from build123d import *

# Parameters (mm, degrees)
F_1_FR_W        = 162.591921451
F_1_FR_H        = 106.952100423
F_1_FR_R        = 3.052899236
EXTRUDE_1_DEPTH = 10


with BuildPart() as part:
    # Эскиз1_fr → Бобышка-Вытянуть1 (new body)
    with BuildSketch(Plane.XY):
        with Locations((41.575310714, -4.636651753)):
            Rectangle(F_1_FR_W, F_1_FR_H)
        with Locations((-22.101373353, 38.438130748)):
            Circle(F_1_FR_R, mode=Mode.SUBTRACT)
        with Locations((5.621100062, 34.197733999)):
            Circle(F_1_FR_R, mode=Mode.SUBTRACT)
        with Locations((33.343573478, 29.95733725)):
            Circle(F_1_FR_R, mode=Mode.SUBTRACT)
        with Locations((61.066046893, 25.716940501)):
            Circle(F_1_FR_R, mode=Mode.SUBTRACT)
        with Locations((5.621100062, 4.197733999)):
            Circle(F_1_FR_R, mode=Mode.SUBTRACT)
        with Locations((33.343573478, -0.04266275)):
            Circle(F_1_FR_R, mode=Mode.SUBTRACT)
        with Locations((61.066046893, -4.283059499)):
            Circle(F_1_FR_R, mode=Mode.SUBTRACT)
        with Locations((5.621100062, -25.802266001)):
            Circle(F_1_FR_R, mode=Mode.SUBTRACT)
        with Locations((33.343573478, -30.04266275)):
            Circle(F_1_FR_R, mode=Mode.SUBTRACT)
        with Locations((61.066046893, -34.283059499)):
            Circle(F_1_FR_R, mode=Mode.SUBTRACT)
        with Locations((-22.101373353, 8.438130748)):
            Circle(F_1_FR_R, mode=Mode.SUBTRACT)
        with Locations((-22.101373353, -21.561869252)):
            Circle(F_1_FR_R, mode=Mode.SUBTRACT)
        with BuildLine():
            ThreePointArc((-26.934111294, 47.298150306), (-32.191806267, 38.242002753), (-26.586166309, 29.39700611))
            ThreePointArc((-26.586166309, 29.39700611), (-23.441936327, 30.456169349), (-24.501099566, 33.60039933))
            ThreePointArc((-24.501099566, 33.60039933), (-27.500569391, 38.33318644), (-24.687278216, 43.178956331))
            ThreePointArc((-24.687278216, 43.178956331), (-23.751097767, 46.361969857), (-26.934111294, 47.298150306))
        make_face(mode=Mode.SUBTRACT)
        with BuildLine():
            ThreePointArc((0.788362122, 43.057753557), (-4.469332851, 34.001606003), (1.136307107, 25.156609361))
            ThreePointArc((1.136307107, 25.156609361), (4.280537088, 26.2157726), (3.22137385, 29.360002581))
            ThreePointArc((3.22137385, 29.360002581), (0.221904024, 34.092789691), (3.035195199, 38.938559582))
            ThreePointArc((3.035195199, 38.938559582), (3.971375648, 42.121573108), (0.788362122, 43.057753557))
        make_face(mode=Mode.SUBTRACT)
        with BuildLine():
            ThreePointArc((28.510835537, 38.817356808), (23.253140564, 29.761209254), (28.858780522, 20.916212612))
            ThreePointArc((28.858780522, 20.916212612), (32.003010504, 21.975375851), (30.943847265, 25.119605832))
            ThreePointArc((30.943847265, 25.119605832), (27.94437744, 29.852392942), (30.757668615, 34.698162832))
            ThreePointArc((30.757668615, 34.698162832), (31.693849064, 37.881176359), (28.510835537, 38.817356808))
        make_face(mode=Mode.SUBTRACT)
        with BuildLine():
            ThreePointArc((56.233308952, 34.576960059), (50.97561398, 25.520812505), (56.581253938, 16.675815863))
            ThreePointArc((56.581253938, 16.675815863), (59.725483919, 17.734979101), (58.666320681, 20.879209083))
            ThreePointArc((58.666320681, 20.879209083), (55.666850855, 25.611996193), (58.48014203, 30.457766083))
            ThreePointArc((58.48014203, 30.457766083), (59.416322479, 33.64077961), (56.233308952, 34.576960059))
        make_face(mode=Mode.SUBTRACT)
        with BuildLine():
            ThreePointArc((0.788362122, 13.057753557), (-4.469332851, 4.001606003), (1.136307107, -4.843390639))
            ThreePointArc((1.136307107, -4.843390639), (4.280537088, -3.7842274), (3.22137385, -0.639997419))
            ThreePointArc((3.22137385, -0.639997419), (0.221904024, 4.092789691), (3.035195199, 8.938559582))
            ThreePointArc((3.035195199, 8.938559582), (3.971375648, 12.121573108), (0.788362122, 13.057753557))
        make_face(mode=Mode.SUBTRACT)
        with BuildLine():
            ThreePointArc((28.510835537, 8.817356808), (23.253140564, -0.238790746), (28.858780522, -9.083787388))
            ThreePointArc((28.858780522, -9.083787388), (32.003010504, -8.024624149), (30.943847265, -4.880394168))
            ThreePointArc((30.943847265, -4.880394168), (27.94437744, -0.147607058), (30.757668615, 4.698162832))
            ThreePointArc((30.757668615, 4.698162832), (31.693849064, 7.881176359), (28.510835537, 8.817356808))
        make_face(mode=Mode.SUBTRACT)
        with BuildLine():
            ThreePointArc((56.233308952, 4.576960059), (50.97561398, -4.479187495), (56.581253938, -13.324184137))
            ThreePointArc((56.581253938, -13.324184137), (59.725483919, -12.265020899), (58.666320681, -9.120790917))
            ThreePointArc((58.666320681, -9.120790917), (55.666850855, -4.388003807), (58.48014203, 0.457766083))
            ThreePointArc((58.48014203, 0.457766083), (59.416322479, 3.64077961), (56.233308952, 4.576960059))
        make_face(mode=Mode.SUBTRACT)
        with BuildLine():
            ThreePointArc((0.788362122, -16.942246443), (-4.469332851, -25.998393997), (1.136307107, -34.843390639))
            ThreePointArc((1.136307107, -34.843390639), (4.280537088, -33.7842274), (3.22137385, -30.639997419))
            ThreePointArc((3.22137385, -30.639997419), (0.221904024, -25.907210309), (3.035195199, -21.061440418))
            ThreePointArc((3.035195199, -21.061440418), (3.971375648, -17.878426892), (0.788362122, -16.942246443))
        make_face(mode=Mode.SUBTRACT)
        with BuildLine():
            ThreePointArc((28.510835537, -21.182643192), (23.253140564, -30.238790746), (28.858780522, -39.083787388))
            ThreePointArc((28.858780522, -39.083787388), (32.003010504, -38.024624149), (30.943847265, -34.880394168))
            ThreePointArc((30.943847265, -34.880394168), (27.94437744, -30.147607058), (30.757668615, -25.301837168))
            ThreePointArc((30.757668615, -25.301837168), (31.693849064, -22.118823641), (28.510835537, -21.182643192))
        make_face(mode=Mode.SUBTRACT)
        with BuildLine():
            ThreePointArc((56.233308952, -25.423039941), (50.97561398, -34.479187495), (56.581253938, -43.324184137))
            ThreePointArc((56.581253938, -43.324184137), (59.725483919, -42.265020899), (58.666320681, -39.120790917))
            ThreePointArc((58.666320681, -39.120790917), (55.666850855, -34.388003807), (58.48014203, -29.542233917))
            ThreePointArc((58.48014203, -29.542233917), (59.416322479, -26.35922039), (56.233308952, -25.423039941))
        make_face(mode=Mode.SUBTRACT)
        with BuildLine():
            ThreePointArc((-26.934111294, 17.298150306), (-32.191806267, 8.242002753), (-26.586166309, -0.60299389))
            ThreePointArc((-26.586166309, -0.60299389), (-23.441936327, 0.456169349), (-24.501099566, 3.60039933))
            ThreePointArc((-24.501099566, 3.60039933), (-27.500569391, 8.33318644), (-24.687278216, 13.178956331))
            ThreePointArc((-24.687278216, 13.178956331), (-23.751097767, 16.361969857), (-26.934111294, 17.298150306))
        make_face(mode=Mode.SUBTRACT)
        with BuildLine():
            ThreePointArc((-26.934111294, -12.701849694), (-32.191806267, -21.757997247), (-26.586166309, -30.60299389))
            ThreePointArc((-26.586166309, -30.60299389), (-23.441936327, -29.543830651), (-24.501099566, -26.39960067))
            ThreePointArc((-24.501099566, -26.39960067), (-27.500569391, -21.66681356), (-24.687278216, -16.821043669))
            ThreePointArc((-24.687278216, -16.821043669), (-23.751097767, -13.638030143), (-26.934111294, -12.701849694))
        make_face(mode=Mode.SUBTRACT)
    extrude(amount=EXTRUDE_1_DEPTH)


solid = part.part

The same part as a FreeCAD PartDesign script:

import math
import FreeCAD as App
import Part
import Sketcher

doc = App.newDocument("Part")
body = doc.addObject("PartDesign::Body", "Body")

# Sketch on XY plane
sketch1 = body.newObject("Sketcher::SketchObject", "Sketch")
sketch1.AttachmentSupport = (doc.getObject("XY_Plane"), [""])
sketch1.MapMode = "FlatFace"
sketch1.addGeometry([
    Part.LineSegment(App.Vector(-39.72065, 48.839398, 0), App.Vector(-39.72065, -58.112702, 0)),  # 0
    Part.LineSegment(App.Vector(-39.72065, -58.112702, 0), App.Vector(122.871271, -58.112702, 0)),  # 1
    Part.LineSegment(App.Vector(122.871271, -58.112702, 0), App.Vector(122.871271, 48.839398, 0)),  # 2
    Part.LineSegment(App.Vector(122.871271, 48.839398, 0), App.Vector(-39.72065, 48.839398, 0)),  # 3
    Part.ArcOfCircle(Part.Circle(App.Vector(-22.101373, -21.561869, 0), App.Vector(0, 0, 1), 10.092339), math.radians(118.61046), math.radians(243.616579)),  # 4
    Part.ArcOfCircle(Part.Circle(App.Vector(-25.810695, -14.761447, 0), App.Vector(0, 0, 1), 2.346061), math.radians(-61.38954), math.radians(118.61046)),  # 5
    Part.ArcOfCircle(Part.Circle(App.Vector(-22.101373, -21.561869, 0), App.Vector(0, 0, 1), 5.400216), math.radians(118.61046), math.radians(243.616579)),  # 6
    Part.ArcOfCircle(Part.Circle(App.Vector(-25.543633, -28.501297, 0), App.Vector(0, 0, 1), 2.346061), math.radians(-116.383421), math.radians(63.616579)),  # 7
    Part.Circle(App.Vector(-22.101373, -21.561869, 0), App.Vector(0, 0, 1), 3.052899),  # 8
    Part.ArcOfCircle(Part.Circle(App.Vector(5.6211, -25.802266, 0), App.Vector(0, 0, 1), 10.092339), math.radians(118.61046), math.radians(243.616579)),  # 9
    Part.ArcOfCircle(Part.Circle(App.Vector(1.911779, -19.001843, 0), App.Vector(0, 0, 1), 2.346061), math.radians(-61.38954), math.radians(118.61046)),  # 10
    Part.ArcOfCircle(Part.Circle(App.Vector(5.6211, -25.802266, 0), App.Vector(0, 0, 1), 5.400216), math.radians(118.61046), math.radians(243.616579)),  # 11
    Part.ArcOfCircle(Part.Circle(App.Vector(2.17884, -32.741694, 0), App.Vector(0, 0, 1), 2.346061), math.radians(-116.383421), math.radians(63.616579)),  # 12
    Part.Circle(App.Vector(5.6211, -25.802266, 0), App.Vector(0, 0, 1), 3.052899),  # 13
    Part.ArcOfCircle(Part.Circle(App.Vector(33.343573, -30.042663, 0), App.Vector(0, 0, 1), 10.092339), math.radians(118.61046), math.radians(243.616579)),  # 14
    Part.ArcOfCircle(Part.Circle(App.Vector(29.634252, -23.24224, 0), App.Vector(0, 0, 1), 2.346061), math.radians(-61.38954), math.radians(118.61046)),  # 15
    Part.ArcOfCircle(Part.Circle(App.Vector(33.343573, -30.042663, 0), App.Vector(0, 0, 1), 5.400216), math.radians(118.61046), math.radians(243.616579)),  # 16
    Part.ArcOfCircle(Part.Circle(App.Vector(29.901314, -36.982091, 0), App.Vector(0, 0, 1), 2.346061), math.radians(-116.383421), math.radians(63.616579)),  # 17
    Part.Circle(App.Vector(33.343573, -30.042663, 0), App.Vector(0, 0, 1), 3.052899),  # 18
    Part.ArcOfCircle(Part.Circle(App.Vector(61.066047, -34.283059, 0), App.Vector(0, 0, 1), 10.092339), math.radians(118.61046), math.radians(243.616579)),  # 19
    Part.ArcOfCircle(Part.Circle(App.Vector(57.356725, -27.482637, 0), App.Vector(0, 0, 1), 2.346061), math.radians(-61.38954), math.radians(118.61046)),  # 20
    Part.ArcOfCircle(Part.Circle(App.Vector(61.066047, -34.283059, 0), App.Vector(0, 0, 1), 5.400216), math.radians(118.61046), math.radians(243.616579)),  # 21
    Part.ArcOfCircle(Part.Circle(App.Vector(57.623787, -41.222488, 0), App.Vector(0, 0, 1), 2.346061), math.radians(-116.383421), math.radians(63.616579)),  # 22
    Part.Circle(App.Vector(61.066047, -34.283059, 0), App.Vector(0, 0, 1), 3.052899),  # 23
    Part.ArcOfCircle(Part.Circle(App.Vector(33.343573, -0.042663, 0), App.Vector(0, 0, 1), 10.092339), math.radians(118.61046), math.radians(243.616579)),  # 24
    Part.ArcOfCircle(Part.Circle(App.Vector(29.634252, 6.75776, 0), App.Vector(0, 0, 1), 2.346061), math.radians(-61.38954), math.radians(118.61046)),  # 25
    Part.ArcOfCircle(Part.Circle(App.Vector(33.343573, -0.042663, 0), App.Vector(0, 0, 1), 5.400216), math.radians(118.61046), math.radians(243.616579)),  # 26
    Part.ArcOfCircle(Part.Circle(App.Vector(29.901314, -6.982091, 0), App.Vector(0, 0, 1), 2.346061), math.radians(-116.383421), math.radians(63.616579)),  # 27
    Part.Circle(App.Vector(33.343573, -0.042663, 0), App.Vector(0, 0, 1), 3.052899),  # 28
    Part.ArcOfCircle(Part.Circle(App.Vector(61.066047, -4.283059, 0), App.Vector(0, 0, 1), 10.092339), math.radians(118.61046), math.radians(243.616579)),  # 29
    Part.ArcOfCircle(Part.Circle(App.Vector(57.356725, 2.517363, 0), App.Vector(0, 0, 1), 2.346061), math.radians(-61.38954), math.radians(118.61046)),  # 30
    Part.ArcOfCircle(Part.Circle(App.Vector(61.066047, -4.283059, 0), App.Vector(0, 0, 1), 5.400216), math.radians(118.61046), math.radians(243.616579)),  # 31
    Part.ArcOfCircle(Part.Circle(App.Vector(57.623787, -11.222488, 0), App.Vector(0, 0, 1), 2.346061), math.radians(-116.383421), math.radians(63.616579)),  # 32
    Part.Circle(App.Vector(61.066047, -4.283059, 0), App.Vector(0, 0, 1), 3.052899),  # 33
    Part.ArcOfCircle(Part.Circle(App.Vector(-22.101373, 8.438131, 0), App.Vector(0, 0, 1), 10.092339), math.radians(118.61046), math.radians(243.616579)),  # 34
    Part.ArcOfCircle(Part.Circle(App.Vector(-25.810695, 15.238553, 0), App.Vector(0, 0, 1), 2.346061), math.radians(-61.38954), math.radians(118.61046)),  # 35
    Part.ArcOfCircle(Part.Circle(App.Vector(-22.101373, 8.438131, 0), App.Vector(0, 0, 1), 5.400216), math.radians(118.61046), math.radians(243.616579)),  # 36
    Part.ArcOfCircle(Part.Circle(App.Vector(-25.543633, 1.498703, 0), App.Vector(0, 0, 1), 2.346061), math.radians(-116.383421), math.radians(63.616579)),  # 37
    Part.Circle(App.Vector(-22.101373, 8.438131, 0), App.Vector(0, 0, 1), 3.052899),  # 38
    Part.ArcOfCircle(Part.Circle(App.Vector(5.6211, 4.197734, 0), App.Vector(0, 0, 1), 10.092339), math.radians(118.61046), math.radians(243.616579)),  # 39
    Part.ArcOfCircle(Part.Circle(App.Vector(1.911779, 10.998157, 0), App.Vector(0, 0, 1), 2.346061), math.radians(-61.38954), math.radians(118.61046)),  # 40
    Part.ArcOfCircle(Part.Circle(App.Vector(5.6211, 4.197734, 0), App.Vector(0, 0, 1), 5.400216), math.radians(118.61046), math.radians(243.616579)),  # 41
    Part.ArcOfCircle(Part.Circle(App.Vector(2.17884, -2.741694, 0), App.Vector(0, 0, 1), 2.346061), math.radians(-116.383421), math.radians(63.616579)),  # 42
    Part.Circle(App.Vector(5.6211, 4.197734, 0), App.Vector(0, 0, 1), 3.052899),  # 43
    Part.ArcOfCircle(Part.Circle(App.Vector(-22.101373, 38.438131, 0), App.Vector(0, 0, 1), 10.092339), math.radians(118.61046), math.radians(243.616579)),  # 44
    Part.ArcOfCircle(Part.Circle(App.Vector(-25.810695, 45.238553, 0), App.Vector(0, 0, 1), 2.346061), math.radians(-61.38954), math.radians(118.61046)),  # 45
    Part.ArcOfCircle(Part.Circle(App.Vector(-22.101373, 38.438131, 0), App.Vector(0, 0, 1), 5.400216), math.radians(118.61046), math.radians(243.616579)),  # 46
    Part.ArcOfCircle(Part.Circle(App.Vector(-25.543633, 31.498703, 0), App.Vector(0, 0, 1), 2.346061), math.radians(-116.383421), math.radians(63.616579)),  # 47
    Part.Circle(App.Vector(-22.101373, 38.438131, 0), App.Vector(0, 0, 1), 3.052899),  # 48
    Part.ArcOfCircle(Part.Circle(App.Vector(5.6211, 34.197734, 0), App.Vector(0, 0, 1), 10.092339), math.radians(118.61046), math.radians(243.616579)),  # 49
    Part.ArcOfCircle(Part.Circle(App.Vector(1.911779, 40.998157, 0), App.Vector(0, 0, 1), 2.346061), math.radians(-61.38954), math.radians(118.61046)),  # 50
    Part.ArcOfCircle(Part.Circle(App.Vector(5.6211, 34.197734, 0), App.Vector(0, 0, 1), 5.400216), math.radians(118.61046), math.radians(243.616579)),  # 51
    Part.ArcOfCircle(Part.Circle(App.Vector(2.17884, 27.258306, 0), App.Vector(0, 0, 1), 2.346061), math.radians(-116.383421), math.radians(63.616579)),  # 52
    Part.Circle(App.Vector(5.6211, 34.197734, 0), App.Vector(0, 0, 1), 3.052899),  # 53
    Part.ArcOfCircle(Part.Circle(App.Vector(33.343573, 29.957337, 0), App.Vector(0, 0, 1), 10.092339), math.radians(118.61046), math.radians(243.616579)),  # 54
    Part.ArcOfCircle(Part.Circle(App.Vector(29.634252, 36.75776, 0), App.Vector(0, 0, 1), 2.346061), math.radians(-61.38954), math.radians(118.61046)),  # 55
    Part.ArcOfCircle(Part.Circle(App.Vector(33.343573, 29.957337, 0), App.Vector(0, 0, 1), 5.400216), math.radians(118.61046), math.radians(243.616579)),  # 56
    Part.ArcOfCircle(Part.Circle(App.Vector(29.901314, 23.017909, 0), App.Vector(0, 0, 1), 2.346061), math.radians(-116.383421), math.radians(63.616579)),  # 57
    Part.Circle(App.Vector(33.343573, 29.957337, 0), App.Vector(0, 0, 1), 3.052899),  # 58
    Part.ArcOfCircle(Part.Circle(App.Vector(61.066047, 25.716941, 0), App.Vector(0, 0, 1), 10.092339), math.radians(118.61046), math.radians(243.616579)),  # 59
    Part.ArcOfCircle(Part.Circle(App.Vector(57.356725, 32.517363, 0), App.Vector(0, 0, 1), 2.346061), math.radians(-61.38954), math.radians(118.61046)),  # 60
    Part.ArcOfCircle(Part.Circle(App.Vector(61.066047, 25.716941, 0), App.Vector(0, 0, 1), 5.400216), math.radians(118.61046), math.radians(243.616579)),  # 61
    Part.ArcOfCircle(Part.Circle(App.Vector(57.623787, 18.777512, 0), App.Vector(0, 0, 1), 2.346061), math.radians(-116.383421), math.radians(63.616579)),  # 62
    Part.Circle(App.Vector(61.066047, 25.716941, 0), App.Vector(0, 0, 1), 3.052899),  # 63
], False)
sketch1.addConstraint([
    Sketcher.Constraint("Coincident", 0, 2, 1, 1),
    Sketcher.Constraint("Coincident", 1, 2, 2, 1),
    Sketcher.Constraint("Coincident", 2, 2, 3, 1),
    Sketcher.Constraint("Coincident", 3, 2, 0, 1),
    Sketcher.Constraint("Tangent", 4, 1, 5, 2),
    Sketcher.Constraint("Tangent", 5, 1, 6, 1),
    Sketcher.Constraint("Tangent", 6, 2, 7, 2),
    Sketcher.Constraint("Tangent", 7, 1, 4, 2),
    Sketcher.Constraint("Tangent", 9, 1, 10, 2),
    Sketcher.Constraint("Tangent", 10, 1, 11, 1),
    Sketcher.Constraint("Tangent", 11, 2, 12, 2),
    Sketcher.Constraint("Tangent", 12, 1, 9, 2),
    Sketcher.Constraint("Tangent", 14, 1, 15, 2),
    Sketcher.Constraint("Tangent", 15, 1, 16, 1),
    Sketcher.Constraint("Tangent", 16, 2, 17, 2),
    Sketcher.Constraint("Tangent", 17, 1, 14, 2),
    Sketcher.Constraint("Tangent", 19, 1, 20, 2),
    Sketcher.Constraint("Tangent", 20, 1, 21, 1),
    Sketcher.Constraint("Tangent", 21, 2, 22, 2),
    Sketcher.Constraint("Tangent", 22, 1, 19, 2),
    Sketcher.Constraint("Tangent", 24, 1, 25, 2),
    Sketcher.Constraint("Tangent", 25, 1, 26, 1),
    Sketcher.Constraint("Tangent", 26, 2, 27, 2),
    Sketcher.Constraint("Tangent", 27, 1, 24, 2),
    Sketcher.Constraint("Tangent", 29, 1, 30, 2),
    Sketcher.Constraint("Tangent", 30, 1, 31, 1),
    Sketcher.Constraint("Tangent", 31, 2, 32, 2),
    Sketcher.Constraint("Tangent", 32, 1, 29, 2),
    Sketcher.Constraint("Tangent", 34, 1, 35, 2),
    Sketcher.Constraint("Tangent", 35, 1, 36, 1),
    Sketcher.Constraint("Tangent", 36, 2, 37, 2),
    Sketcher.Constraint("Tangent", 37, 1, 34, 2),
    Sketcher.Constraint("Tangent", 39, 1, 40, 2),
    Sketcher.Constraint("Tangent", 40, 1, 41, 1),
    Sketcher.Constraint("Tangent", 41, 2, 42, 2),
    Sketcher.Constraint("Tangent", 42, 1, 39, 2),
    Sketcher.Constraint("Tangent", 44, 1, 45, 2),
    Sketcher.Constraint("Tangent", 45, 1, 46, 1),
    Sketcher.Constraint("Tangent", 46, 2, 47, 2),
    Sketcher.Constraint("Tangent", 47, 1, 44, 2),
    Sketcher.Constraint("Tangent", 49, 1, 50, 2),
    Sketcher.Constraint("Tangent", 50, 1, 51, 1),
    Sketcher.Constraint("Tangent", 51, 2, 52, 2),
    Sketcher.Constraint("Tangent", 52, 1, 49, 2),
    Sketcher.Constraint("Tangent", 54, 1, 55, 2),
    Sketcher.Constraint("Tangent", 55, 1, 56, 1),
    Sketcher.Constraint("Tangent", 56, 2, 57, 2),
    Sketcher.Constraint("Tangent", 57, 1, 54, 2),
    Sketcher.Constraint("Tangent", 59, 1, 60, 2),
    Sketcher.Constraint("Tangent", 60, 1, 61, 1),
    Sketcher.Constraint("Tangent", 61, 2, 62, 2),
    Sketcher.Constraint("Tangent", 62, 1, 59, 2),
    Sketcher.Constraint("Vertical", 0),
    Sketcher.Constraint("Horizontal", 1),
    Sketcher.Constraint("Vertical", 2),
    Sketcher.Constraint("Horizontal", 3),
    Sketcher.Constraint("Coincident", 6, 3, 4, 3),
    Sketcher.Constraint("Coincident", 8, 3, 4, 3),
    Sketcher.Constraint("Coincident", 11, 3, 9, 3),
    Sketcher.Constraint("Coincident", 13, 3, 9, 3),
    Sketcher.Constraint("Coincident", 16, 3, 14, 3),
    Sketcher.Constraint("Coincident", 18, 3, 14, 3),
    Sketcher.Constraint("Coincident", 21, 3, 19, 3),
    Sketcher.Constraint("Coincident", 23, 3, 19, 3),
    Sketcher.Constraint("Coincident", 26, 3, 24, 3),
    Sketcher.Constraint("Coincident", 28, 3, 24, 3),
    Sketcher.Constraint("Coincident", 31, 3, 29, 3),
    Sketcher.Constraint("Coincident", 33, 3, 29, 3),
    Sketcher.Constraint("Coincident", 36, 3, 34, 3),
    Sketcher.Constraint("Coincident", 38, 3, 34, 3),
    Sketcher.Constraint("Coincident", 41, 3, 39, 3),
    Sketcher.Constraint("Coincident", 43, 3, 39, 3),
    Sketcher.Constraint("Coincident", 46, 3, 44, 3),
    Sketcher.Constraint("Coincident", 48, 3, 44, 3),
    Sketcher.Constraint("Coincident", 51, 3, 49, 3),
    Sketcher.Constraint("Coincident", 53, 3, 49, 3),
    Sketcher.Constraint("Coincident", 56, 3, 54, 3),
    Sketcher.Constraint("Coincident", 58, 3, 54, 3),
    Sketcher.Constraint("Coincident", 61, 3, 59, 3),
    Sketcher.Constraint("Coincident", 63, 3, 59, 3),
    Sketcher.Constraint("Equal", 4, 9),
    Sketcher.Constraint("Equal", 7, 10),
    Sketcher.Constraint("Equal", 8, 13),
    Sketcher.Constraint("Equal", 9, 14),
    Sketcher.Constraint("Equal", 12, 15),
    Sketcher.Constraint("Equal", 13, 18),
    Sketcher.Constraint("Equal", 14, 19),
    Sketcher.Constraint("Equal", 17, 20),
    Sketcher.Constraint("Equal", 18, 23),
    Sketcher.Constraint("Equal", 19, 24),
    Sketcher.Constraint("Equal", 22, 25),
    Sketcher.Constraint("Equal", 23, 28),
    Sketcher.Constraint("Equal", 24, 29),
    Sketcher.Constraint("Equal", 27, 30),
    Sketcher.Constraint("Equal", 28, 33),
    Sketcher.Constraint("Equal", 29, 34),
    Sketcher.Constraint("Equal", 32, 35),
    Sketcher.Constraint("Equal", 33, 38),
    Sketcher.Constraint("Equal", 34, 39),
    Sketcher.Constraint("Equal", 37, 40),
    Sketcher.Constraint("Equal", 38, 43),
    Sketcher.Constraint("Equal", 39, 44),
    Sketcher.Constraint("Equal", 42, 45),
    Sketcher.Constraint("Equal", 43, 48),
    Sketcher.Constraint("Equal", 44, 49),
    Sketcher.Constraint("Equal", 47, 50),
    Sketcher.Constraint("Equal", 48, 53),
    Sketcher.Constraint("Equal", 49, 54),
    Sketcher.Constraint("Equal", 52, 55),
    Sketcher.Constraint("Equal", 53, 58),
    Sketcher.Constraint("Equal", 54, 59),
    Sketcher.Constraint("Equal", 57, 60),
    Sketcher.Constraint("Equal", 58, 63),
    Sketcher.Constraint("Vertical", 18, 3, 24, 3),
    Sketcher.Constraint("Vertical", 15, 3, 25, 3),
    Sketcher.Constraint("Vertical", 17, 3, 27, 3),
    Sketcher.Constraint("Vertical", 23, 3, 29, 3),
    Sketcher.Constraint("Vertical", 20, 3, 30, 3),
    Sketcher.Constraint("Vertical", 22, 3, 32, 3),
    Sketcher.Constraint("Vertical", 8, 3, 34, 3),
    Sketcher.Constraint("Vertical", 5, 3, 35, 3),
    Sketcher.Constraint("Vertical", 7, 3, 37, 3),
    Sketcher.Constraint("Vertical", 13, 3, 39, 3),
    Sketcher.Constraint("Vertical", 10, 3, 40, 3),
    Sketcher.Constraint("Vertical", 12, 3, 42, 3),
    Sketcher.Constraint("Vertical", 38, 3, 44, 3),
    Sketcher.Constraint("Vertical", 35, 3, 45, 3),
    Sketcher.Constraint("Vertical", 37, 3, 47, 3),
    Sketcher.Constraint("Vertical", 43, 3, 49, 3),
    Sketcher.Constraint("Vertical", 40, 3, 50, 3),
    Sketcher.Constraint("Vertical", 42, 3, 52, 3),
    Sketcher.Constraint("Vertical", 28, 3, 54, 3),
    Sketcher.Constraint("Vertical", 25, 3, 55, 3),
    Sketcher.Constraint("Vertical", 27, 3, 57, 3),
    Sketcher.Constraint("Vertical", 33, 3, 59, 3),
    Sketcher.Constraint("Vertical", 30, 3, 60, 3),
    Sketcher.Constraint("Vertical", 32, 3, 62, 3),
    Sketcher.Constraint("Diameter", 8, 6.105798),
    Sketcher.Constraint("Radius", 4, 10.092339),
    Sketcher.Constraint("Radius", 5, 2.346061),
    Sketcher.Constraint("DistanceY", 0, 2, 0, 1, 106.9521),
    Sketcher.Constraint("DistanceX", 1, 1, 1, 2, 162.591921),
    Sketcher.Constraint("DistanceX", -1, 1, 9, 3, 5.6211),
    Sketcher.Constraint("DistanceY", 0, 2, -1, 1, 58.112702),
    Sketcher.Constraint("DistanceX", 6, 2, -1, 1, 24.5011),
    Sketcher.Constraint("DistanceY", 6, 2, -1, 1, 26.399601),
    Sketcher.Constraint("DistanceY", -1, 1, 36, 2, 3.600399),
    Sketcher.Constraint("DistanceY", -1, 1, 46, 2, 33.600399),
    Sketcher.Constraint("DistanceY", 4, 3, -1, 1, 21.561869),
    Sketcher.Constraint("DistanceX", -1, 1, 10, 3, 1.911779),
    Sketcher.Constraint("DistanceX", -1, 1, 12, 3, 2.17884),
    Sketcher.Constraint("DistanceY", 15, 3, -1, 1, 23.24224),
    Sketcher.Constraint("DistanceY", 17, 3, -1, 1, 36.982091),
    Sketcher.Constraint("DistanceY", 19, 3, -1, 1, 34.283059),
    Sketcher.Constraint("DistanceY", -1, 1, 25, 3, 6.75776),
    Sketcher.Constraint("DistanceY", 29, 3, -1, 1, 4.283059),
    Sketcher.Constraint("DistanceY", -1, 1, 55, 3, 36.75776),
    Sketcher.Constraint("DistanceY", -1, 1, 59, 3, 25.716941),
    Sketcher.Constraint("DistanceX", 0, 2, -1, 1, 39.72065),
    Sketcher.Constraint("DistanceX", 4, 1, -1, 1, 26.934111),
    Sketcher.Constraint("DistanceY", 10, 1, -1, 1, 21.06144),
    Sketcher.Constraint("DistanceX", -1, 1, 15, 1, 30.757669),
    Sketcher.Constraint("DistanceX", -1, 1, 17, 1, 28.858781),
    Sketcher.Constraint("DistanceX", -1, 1, 19, 1, 56.233309),
    Sketcher.Constraint("DistanceY", 19, 1, -1, 1, 25.42304),
    Sketcher.Constraint("DistanceX", -1, 1, 21, 2, 58.666321),
    Sketcher.Constraint("DistanceY", -1, 1, 40, 1, 8.93856),
    Sketcher.Constraint("DistanceY", -1, 1, 50, 1, 38.93856),
])
pad1 = body.newObject("PartDesign::Pad", "Pad")
pad1.Profile = sketch1
pad1.Length = 10

doc.recompute()
